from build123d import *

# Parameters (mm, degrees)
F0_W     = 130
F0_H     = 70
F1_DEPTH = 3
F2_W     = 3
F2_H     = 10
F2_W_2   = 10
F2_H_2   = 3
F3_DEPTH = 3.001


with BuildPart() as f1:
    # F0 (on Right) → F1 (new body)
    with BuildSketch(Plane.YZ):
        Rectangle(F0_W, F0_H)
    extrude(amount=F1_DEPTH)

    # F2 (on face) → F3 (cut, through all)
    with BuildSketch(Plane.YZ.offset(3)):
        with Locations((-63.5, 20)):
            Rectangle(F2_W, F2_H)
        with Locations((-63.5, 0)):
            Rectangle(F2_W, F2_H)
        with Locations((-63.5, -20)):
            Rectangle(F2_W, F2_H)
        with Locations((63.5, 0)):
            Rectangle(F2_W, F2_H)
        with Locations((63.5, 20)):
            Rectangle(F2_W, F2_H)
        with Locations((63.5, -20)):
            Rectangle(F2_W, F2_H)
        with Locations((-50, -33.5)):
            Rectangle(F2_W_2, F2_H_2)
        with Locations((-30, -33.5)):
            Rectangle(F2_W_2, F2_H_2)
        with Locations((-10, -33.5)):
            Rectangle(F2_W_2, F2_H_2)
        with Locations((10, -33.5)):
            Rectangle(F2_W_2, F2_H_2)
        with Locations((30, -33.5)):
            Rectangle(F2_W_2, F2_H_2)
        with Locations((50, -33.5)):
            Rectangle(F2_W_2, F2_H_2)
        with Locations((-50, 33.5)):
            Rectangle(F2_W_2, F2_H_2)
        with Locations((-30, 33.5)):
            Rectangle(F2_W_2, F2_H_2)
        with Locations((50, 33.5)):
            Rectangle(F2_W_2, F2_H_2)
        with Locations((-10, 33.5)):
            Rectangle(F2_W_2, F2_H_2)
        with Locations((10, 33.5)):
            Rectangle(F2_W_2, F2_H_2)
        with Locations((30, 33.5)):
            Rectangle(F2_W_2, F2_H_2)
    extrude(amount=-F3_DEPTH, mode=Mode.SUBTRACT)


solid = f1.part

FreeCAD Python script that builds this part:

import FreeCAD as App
import Part
import Sketcher
Q = App.Units.Quantity

doc = App.newDocument("Part")
body = doc.addObject("PartDesign::Body", "Body")

# Sketch on YZ plane
sketch1 = body.newObject("Sketcher::SketchObject", "Sketch")
sketch1.AttachmentSupport = (doc.getObject("YZ_Plane"), [""])
sketch1.MapMode = "FlatFace"
sketch1.addGeometry(Part.LineSegment(App.Vector(-65, 35, 0), App.Vector(-65, -35, 0)), False)
sketch1.addGeometry(Part.LineSegment(App.Vector(-65, -35, 0), App.Vector(65, -35, 0)), False)
sketch1.addGeometry(Part.LineSegment(App.Vector(65, -35, 0), App.Vector(65, 35, 0)), False)
sketch1.addGeometry(Part.LineSegment(App.Vector(65, 35, 0), App.Vector(-65, 35, 0)), False)
sketch1.addConstraint(Sketcher.Constraint("Coincident", 0, 2, 1, 1))
sketch1.addConstraint(Sketcher.Constraint("Coincident", 1, 2, 2, 1))
sketch1.addConstraint(Sketcher.Constraint("Coincident", 2, 2, 3, 1))
sketch1.addConstraint(Sketcher.Constraint("Coincident", 3, 2, 0, 1))
sketch1.addConstraint(Sketcher.Constraint("Vertical", 0))
sketch1.addConstraint(Sketcher.Constraint("Horizontal", 1))
sketch1.addConstraint(Sketcher.Constraint("Vertical", 2))
sketch1.addConstraint(Sketcher.Constraint("Horizontal", 3))
sketch1.addConstraint(Sketcher.Constraint("Symmetric", 0, 2, 2, 2, -1, 1))
sketch1.addConstraint(Sketcher.Constraint("DistanceX", 1, 1, 1, 2, Q("130 mm")))
sketch1.addConstraint(Sketcher.Constraint("DistanceY", 0, 2, 0, 1, Q("70 mm")))
pad1 = body.newObject("PartDesign::Pad", "Pad")
pad1.Profile = sketch1
pad1.Length = 3

# Sketch on YZ plane
sketch2 = body.newObject("Sketcher::SketchObject", "Sketch001")
sketch2.AttachmentSupport = (doc.getObject("YZ_Plane"), [""])
sketch2.MapMode = "FlatFace"
sketch2.AttachmentOffset = App.Placement(App.Vector(0, 0, 3), App.Rotation())
sketch2.addGeometry(Part.LineSegment(App.Vector(-65, 25, 0), App.Vector(-65, 15, 0)), False)
sketch2.addGeometry(Part.LineSegment(App.Vector(-65, 15, 0), App.Vector(-62, 15, 0)), False)
sketch2.addGeometry(Part.LineSegment(App.Vector(-62, 15, 0), App.Vector(-62, 25, 0)), False)
sketch2.addGeometry(Part.LineSegment(App.Vector(-62, 25, 0), App.Vector(-65, 25, 0)), False)
sketch2.addGeometry(Part.LineSegment(App.Vector(-65, 5, 0), App.Vector(-65, -5, 0)), False)
sketch2.addGeometry(Part.LineSegment(App.Vector(-65, -5, 0), App.Vector(-62, -5, 0)), False)
sketch2.addGeometry(Part.LineSegment(App.Vector(-62, -5, 0), App.Vector(-62, 5, 0)), False)
sketch2.addGeometry(Part.LineSegment(App.Vector(-62, 5, 0), App.Vector(-65, 5, 0)), False)
sketch2.addGeometry(Part.LineSegment(App.Vector(-65, -15, 0), App.Vector(-65, -25, 0)), False)
sketch2.addGeometry(Part.LineSegment(App.Vector(-65, -25, 0), App.Vector(-62, -25, 0)), False)
sketch2.addGeometry(Part.LineSegment(App.Vector(-62, -25, 0), App.Vector(-62, -15, 0)), False)
sketch2.addGeometry(Part.LineSegment(App.Vector(-62, -15, 0), App.Vector(-65, -15, 0)), False)
sketch2.addGeometry(Part.LineSegment(App.Vector(62, 5, 0), App.Vector(62, -5, 0)), False)
sketch2.addGeometry(Part.LineSegment(App.Vector(62, -5, 0), App.Vector(65, -5, 0)), False)
sketch2.addGeometry(Part.LineSegment(App.Vector(65, -5, 0), App.Vector(65, 5, 0)), False)
sketch2.addGeometry(Part.LineSegment(App.Vector(65, 5, 0), App.Vector(62, 5, 0)), False)
sketch2.addGeometry(Part.LineSegment(App.Vector(62, 25, 0), App.Vector(62, 15, 0)), False)
sketch2.addGeometry(Part.LineSegment(App.Vector(62, 15, 0), App.Vector(65, 15, 0)), False)
sketch2.addGeometry(Part.LineSegment(App.Vector(65, 15, 0), App.Vector(65, 25, 0)), False)
sketch2.addGeometry(Part.LineSegment(App.Vector(65, 25, 0), App.Vector(62, 25, 0)), False)
sketch2.addGeometry(Part.LineSegment(App.Vector(62, -15, 0), App.Vector(62, -25, 0)), False)
sketch2.addGeometry(Part.LineSegment(App.Vector(62, -25, 0), App.Vector(65, -25, 0)), False)
sketch2.addGeometry(Part.LineSegment(App.Vector(65, -25, 0), App.Vector(65, -15, 0)), False)
sketch2.addGeometry(Part.LineSegment(App.Vector(65, -15, 0), App.Vector(62, -15, 0)), False)
sketch2.addGeometry(Part.LineSegment(App.Vector(-55, -32, 0), App.Vector(-55, -35, 0)), False)
sketch2.addGeometry(Part.LineSegment(App.Vector(-55, -35, 0), App.Vector(-45, -35, 0)), False)
sketch2.addGeometry(Part.LineSegment(App.Vector(-45, -35, 0), App.Vector(-45, -32, 0)), False)
sketch2.addGeometry(Part.LineSegment(App.Vector(-45, -32, 0), App.Vector(-55, -32, 0)), False)
sketch2.addGeometry(Part.LineSegment(App.Vector(-35, -32, 0), App.Vector(-35, -35, 0)), False)
sketch2.addGeometry(Part.LineSegment(App.Vector(-35, -35, 0), App.Vector(-25, -35, 0)), False)
sketch2.addGeometry(Part.LineSegment(App.Vector(-25, -35, 0), App.Vector(-25, -32, 0)), False)
sketch2.addGeometry(Part.LineSegment(App.Vector(-25, -32, 0), App.Vector(-35, -32, 0)), False)
sketch2.addGeometry(Part.LineSegment(App.Vector(-15, -32, 0), App.Vector(-15, -35, 0)), False)
sketch2.addGeometry(Part.LineSegment(App.Vector(-15, -35, 0), App.Vector(-5, -35, 0)), False)
sketch2.addGeometry(Part.LineSegment(App.Vector(-5, -35, 0), App.Vector(-5, -32, 0)), False)
sketch2.addGeometry(Part.LineSegment(App.Vector(-5, -32, 0), App.Vector(-15, -32, 0)), False)
sketch2.addGeometry(Part.LineSegment(App.Vector(5, -32, 0), App.Vector(5, -35, 0)), False)
sketch2.addGeometry(Part.LineSegment(App.Vector(5, -35, 0), App.Vector(15, -35, 0)), False)
sketch2.addGeometry(Part.LineSegment(App.Vector(15, -35, 0), App.Vector(15, -32, 0)), False)
sketch2.addGeometry(Part.LineSegment(App.Vector(15, -32, 0), App.Vector(5, -32, 0)), False)
sketch2.addGeometry(Part.LineSegment(App.Vector(25, -32, 0), App.Vector(25, -35, 0)), False)
sketch2.addGeometry(Part.LineSegment(App.Vector(25, -35, 0), App.Vector(35, -35, 0)), False)
sketch2.addGeometry(Part.LineSegment(App.Vector(35, -35, 0), App.Vector(35, -32, 0)), False)
sketch2.addGeometry(Part.LineSegment(App.Vector(35, -32, 0), App.Vector(25, -32, 0)), False)
sketch2.addGeometry(Part.LineSegment(App.Vector(45, -32, 0), App.Vector(45, -35, 0)), False)
sketch2.addGeometry(Part.LineSegment(App.Vector(45, -35, 0), App.Vector(55, -35, 0)), False)
sketch2.addGeometry(Part.LineSegment(App.Vector(55, -35, 0), App.Vector(55, -32, 0)), False)
sketch2.addGeometry(Part.LineSegment(App.Vector(55, -32, 0), App.Vector(45, -32, 0)), False)
sketch2.addGeometry(Part.LineSegment(App.Vector(-55, 35, 0), App.Vector(-55, 32, 0)), False)
sketch2.addGeometry(Part.LineSegment(App.Vector(-55, 32, 0), App.Vector(-45, 32, 0)), False)
sketch2.addGeometry(Part.LineSegment(App.Vector(-45, 32, 0), App.Vector(-45, 35, 0)), False)
sketch2.addGeometry(Part.LineSegment(App.Vector(-45, 35, 0), App.Vector(-55, 35, 0)), False)
sketch2.addGeometry(Part.LineSegment(App.Vector(-35, 35, 0), App.Vector(-35, 32, 0)), False)
sketch2.addGeometry(Part.LineSegment(App.Vector(-35, 32, 0), App.Vector(-25, 32, 0)), False)
sketch2.addGeometry(Part.LineSegment(App.Vector(-25, 32, 0), App.Vector(-25, 35, 0)), False)
sketch2.addGeometry(Part.LineSegment(App.Vector(-25, 35, 0), App.Vector(-35, 35, 0)), False)
sketch2.addGeometry(Part.LineSegment(App.Vector(45, 35, 0), App.Vector(45, 32, 0)), False)
sketch2.addGeometry(Part.LineSegment(App.Vector(45, 32, 0), App.Vector(55, 32, 0)), False)
sketch2.addGeometry(Part.LineSegment(App.Vector(55, 32, 0), App.Vector(55, 35, 0)), False)
sketch2.addGeometry(Part.LineSegment(App.Vector(55, 35, 0), App.Vector(45, 35, 0)), False)
sketch2.addGeometry(Part.LineSegment(App.Vector(-15, 35, 0), App.Vector(-15, 32, 0)), False)
sketch2.addGeometry(Part.LineSegment(App.Vector(-15, 32, 0), App.Vector(-5, 32, 0)), False)
sketch2.addGeometry(Part.LineSegment(App.Vector(-5, 32, 0), App.Vector(-5, 35, 0)), False)
sketch2.addGeometry(Part.LineSegment(App.Vector(-5, 35, 0), App.Vector(-15, 35, 0)), False)
sketch2.addGeometry(Part.LineSegment(App.Vector(5, 35, 0), App.Vector(5, 32, 0)), False)
sketch2.addGeometry(Part.LineSegment(App.Vector(5, 32, 0), App.Vector(15, 32, 0)), False)
sketch2.addGeometry(Part.LineSegment(App.Vector(15, 32, 0), App.Vector(15, 35, 0)), False)
sketch2.addGeometry(Part.LineSegment(App.Vector(15, 35, 0), App.Vector(5, 35, 0)), False)
sketch2.addGeometry(Part.LineSegment(App.Vector(25, 35, 0), App.Vector(25, 32, 0)), False)
sketch2.addGeometry(Part.LineSegment(App.Vector(25, 32, 0), App.Vector(35, 32, 0)), False)
sketch2.addGeometry(Part.LineSegment(App.Vector(35, 32, 0), App.Vector(35, 35, 0)), False)
sketch2.addGeometry(Part.LineSegment(App.Vector(35, 35, 0), App.Vector(25, 35, 0)), False)
sketch2.addConstraint(Sketcher.Constraint("Coincident", 0, 2, 1, 1))
sketch2.addConstraint(Sketcher.Constraint("Coincident", 1, 2, 2, 1))
sketch2.addConstraint(Sketcher.Constraint("Coincident", 2, 2, 3, 1))
sketch2.addConstraint(Sketcher.Constraint("Coincident", 3, 2, 0, 1))
sketch2.addConstraint(Sketcher.Constraint("Coincident", 4, 2, 5, 1))
sketch2.addConstraint(Sketcher.Constraint("Coincident", 5, 2, 6, 1))
sketch2.addConstraint(Sketcher.Constraint("Coincident", 6, 2, 7, 1))
sketch2.addConstraint(Sketcher.Constraint("Coincident", 7, 2, 4, 1))
sketch2.addConstraint(Sketcher.Constraint("Coincident", 8, 2, 9, 1))
sketch2.addConstraint(Sketcher.Constraint("Coincident", 9, 2, 10, 1))
sketch2.addConstraint(Sketcher.Constraint("Coincident", 10, 2, 11, 1))
sketch2.addConstraint(Sketcher.Constraint("Coincident", 11, 2, 8, 1))
sketch2.addConstraint(Sketcher.Constraint("Coincident", 12, 2, 13, 1))
sketch2.addConstraint(Sketcher.Constraint("Coincident", 13, 2, 14, 1))
sketch2.addConstraint(Sketcher.Constraint("Coincident", 14, 2, 15, 1))
sketch2.addConstraint(Sketcher.Constraint("Coincident", 15, 2, 12, 1))
sketch2.addConstraint(Sketcher.Constraint("Coincident", 16, 2, 17, 1))
sketch2.addConstraint(Sketcher.Constraint("Coincident", 17, 2, 18, 1))
sketch2.addConstraint(Sketcher.Constraint("Coincident", 18, 2, 19, 1))
sketch2.addConstraint(Sketcher.Constraint("Coincident", 19, 2, 16, 1))
sketch2.addConstraint(Sketcher.Constraint("Coincident", 20, 2, 21, 1))
sketch2.addConstraint(Sketcher.Constraint("Coincident", 21, 2, 22, 1))
sketch2.addConstraint(Sketcher.Constraint("Coincident", 22, 2, 23, 1))
sketch2.addConstraint(Sketcher.Constraint("Coincident", 23, 2, 20, 1))
sketch2.addConstraint(Sketcher.Constraint("Coincident", 24, 2, 25, 1))
sketch2.addConstraint(Sketcher.Constraint("Coincident", 25, 2, 26, 1))
sketch2.addConstraint(Sketcher.Constraint("Coincident", 26, 2, 27, 1))
sketch2.addConstraint(Sketcher.Constraint("Coincident", 27, 2, 24, 1))
sketch2.addConstraint(Sketcher.Constraint("Coincident", 28, 2, 29, 1))
sketch2.addConstraint(Sketcher.Constraint("Coincident", 29, 2, 30, 1))
sketch2.addConstraint(Sketcher.Constraint("Coincident", 30, 2, 31, 1))
sketch2.addConstraint(Sketcher.Constraint("Coincident", 31, 2, 28, 1))
sketch2.addConstraint(Sketcher.Constraint("Coincident", 32, 2, 33, 1))
sketch2.addConstraint(Sketcher.Constraint("Coincident", 33, 2, 34, 1))
sketch2.addConstraint(Sketcher.Constraint("Coincident", 34, 2, 35, 1))
sketch2.addConstraint(Sketcher.Constraint("Coincident", 35, 2, 32, 1))
sketch2.addConstraint(Sketcher.Constraint("Coincident", 36, 2, 37, 1))
sketch2.addConstraint(Sketcher.Constraint("Coincident", 37, 2, 38, 1))
sketch2.addConstraint(Sketcher.Constraint("Coincident", 38, 2, 39, 1))
sketch2.addConstraint(Sketcher.Constraint("Coincident", 39, 2, 36, 1))
sketch2.addConstraint(Sketcher.Constraint("Coincident", 40, 2, 41, 1))
sketch2.addConstraint(Sketcher.Constraint("Coincident", 41, 2, 42, 1))
sketch2.addConstraint(Sketcher.Constraint("Coincident", 42, 2, 43, 1))
sketch2.addConstraint(Sketcher.Constraint("Coincident", 43, 2, 40, 1))
sketch2.addConstraint(Sketcher.Constraint("Coincident", 44, 2, 45, 1))
sketch2.addConstraint(Sketcher.Constraint("Coincident", 45, 2, 46, 1))
sketch2.addConstraint(Sketcher.Constraint("Coincident", 46, 2, 47, 1))
sketch2.addConstraint(Sketcher.Constraint("Coincident", 47, 2, 44, 1))
sketch2.addConstraint(Sketcher.Constraint("Coincident", 48, 2, 49, 1))
sketch2.addConstraint(Sketcher.Constraint("Coincident", 49, 2, 50, 1))
sketch2.addConstraint(Sketcher.Constraint("Coincident", 50, 2, 51, 1))
sketch2.addConstraint(Sketcher.Constraint("Coincident", 51, 2, 48, 1))
sketch2.addConstraint(Sketcher.Constraint("Coincident", 52, 2, 53, 1))
sketch2.addConstraint(Sketcher.Constraint("Coincident", 53, 2, 54, 1))
sketch2.addConstraint(Sketcher.Constraint("Coincident", 54, 2, 55, 1))
sketch2.addConstraint(Sketcher.Constraint("Coincident", 55, 2, 52, 1))
sketch2.addConstraint(Sketcher.Constraint("Coincident", 56, 2, 57, 1))
sketch2.addConstraint(Sketcher.Constraint("Coincident", 57, 2, 58, 1))
sketch2.addConstraint(Sketcher.Constraint("Coincident", 58, 2, 59, 1))
sketch2.addConstraint(Sketcher.Constraint("Coincident", 59, 2, 56, 1))
sketch2.addConstraint(Sketcher.Constraint("Coincident", 60, 2, 61, 1))
sketch2.addConstraint(Sketcher.Constraint("Coincident", 61, 2, 62, 1))
sketch2.addConstraint(Sketcher.Constraint("Coincident", 62, 2, 63, 1))
sketch2.addConstraint(Sketcher.Constraint("Coincident", 63, 2, 60, 1))
sketch2.addConstraint(Sketcher.Constraint("Coincident", 64, 2, 65, 1))
sketch2.addConstraint(Sketcher.Constraint("Coincident", 65, 2, 66, 1))
sketch2.addConstraint(Sketcher.Constraint("Coincident", 66, 2, 67, 1))
sketch2.addConstraint(Sketcher.Constraint("Coincident", 67, 2, 64, 1))
sketch2.addConstraint(Sketcher.Constraint("Coincident", 68, 2, 69, 1))
sketch2.addConstraint(Sketcher.Constraint("Coincident", 69, 2, 70, 1))
sketch2.addConstraint(Sketcher.Constraint("Coincident", 70, 2, 71, 1))
sketch2.addConstraint(Sketcher.Constraint("Coincident", 71, 2, 68, 1))
sketch2.addConstraint(Sketcher.Constraint("Vertical", 0))
sketch2.addConstraint(Sketcher.Constraint("Horizontal", 1))
sketch2.addConstraint(Sketcher.Constraint("Vertical", 2))
sketch2.addConstraint(Sketcher.Constraint("Horizontal", 3))
sketch2.addConstraint(Sketcher.Constraint("Vertical", 4))
sketch2.addConstraint(Sketcher.Constraint("Horizontal", 5))
sketch2.addConstraint(Sketcher.Constraint("Vertical", 6))
sketch2.addConstraint(Sketcher.Constraint("Horizontal", 7))
sketch2.addConstraint(Sketcher.Constraint("Vertical", 8))
sketch2.addConstraint(Sketcher.Constraint("Horizontal", 9))
sketch2.addConstraint(Sketcher.Constraint("Vertical", 10))
sketch2.addConstraint(Sketcher.Constraint("Horizontal", 11))
sketch2.addConstraint(Sketcher.Constraint("Vertical", 12))
sketch2.addConstraint(Sketcher.Constraint("Horizontal", 13))
sketch2.addConstraint(Sketcher.Constraint("Vertical", 14))
sketch2.addConstraint(Sketcher.Constraint("Horizontal", 15))
sketch2.addConstraint(Sketcher.Constraint("Vertical", 16))
sketch2.addConstraint(Sketcher.Constraint("Horizontal", 17))
sketch2.addConstraint(Sketcher.Constraint("Vertical", 18))
sketch2.addConstraint(Sketcher.Constraint("Horizontal", 19))
sketch2.addConstraint(Sketcher.Constraint("Vertical", 20))
sketch2.addConstraint(Sketcher.Constraint("Horizontal", 21))
sketch2.addConstraint(Sketcher.Constraint("Vertical", 22))
sketch2.addConstraint(Sketcher.Constraint("Horizontal", 23))
sketch2.addConstraint(Sketcher.Constraint("Vertical", 24))
sketch2.addConstraint(Sketcher.Constraint("Horizontal", 25))
sketch2.addConstraint(Sketcher.Constraint("Vertical", 26))
sketch2.addConstraint(Sketcher.Constraint("Horizontal", 27))
sketch2.addConstraint(Sketcher.Constraint("Vertical", 28))
sketch2.addConstraint(Sketcher.Constraint("Horizontal", 29))
sketch2.addConstraint(Sketcher.Constraint("Vertical", 30))
sketch2.addConstraint(Sketcher.Constraint("Horizontal", 31))
sketch2.addConstraint(Sketcher.Constraint("Vertical", 32))
sketch2.addConstraint(Sketcher.Constraint("Horizontal", 33))
sketch2.addConstraint(Sketcher.Constraint("Vertical", 34))
sketch2.addConstraint(Sketcher.Constraint("Horizontal", 35))
sketch2.addConstraint(Sketcher.Constraint("Vertical", 36))
sketch2.addConstraint(Sketcher.Constraint("Horizontal", 37))
sketch2.addConstraint(Sketcher.Constraint("Vertical", 38))
sketch2.addConstraint(Sketcher.Constraint("Horizontal", 39))
sketch2.addConstraint(Sketcher.Constraint("Vertical", 40))
sketch2.addConstraint(Sketcher.Constraint("Horizontal", 41))
sketch2.addConstraint(Sketcher.Constraint("Vertical", 42))
sketch2.addConstraint(Sketcher.Constraint("Horizontal", 43))
sketch2.addConstraint(Sketcher.Constraint("Vertical", 44))
sketch2.addConstraint(Sketcher.Constraint("Horizontal", 45))
sketch2.addConstraint(Sketcher.Constraint("Vertical", 46))
sketch2.addConstraint(Sketcher.Constraint("Horizontal", 47))
sketch2.addConstraint(Sketcher.Constraint("Vertical", 48))
sketch2.addConstraint(Sketcher.Constraint("Horizontal", 49))
sketch2.addConstraint(Sketcher.Constraint("Vertical", 50))
sketch2.addConstraint(Sketcher.Constraint("Horizontal", 51))
sketch2.addConstraint(Sketcher.Constraint("Vertical", 52))
sketch2.addConstraint(Sketcher.Constraint("Horizontal", 53))
sketch2.addConstraint(Sketcher.Constraint("Vertical", 54))
sketch2.addConstraint(Sketcher.Constraint("Horizontal", 55))
sketch2.addConstraint(Sketcher.Constraint("Vertical", 56))
sketch2.addConstraint(Sketcher.Constraint("Horizontal", 57))
sketch2.addConstraint(Sketcher.Constraint("Vertical", 58))
sketch2.addConstraint(Sketcher.Constraint("Horizontal", 59))
sketch2.addConstraint(Sketcher.Constraint("Vertical", 60))
sketch2.addConstraint(Sketcher.Constraint("Horizontal", 61))
sketch2.addConstraint(Sketcher.Constraint("Vertical", 62))
sketch2.addConstraint(Sketcher.Constraint("Horizontal", 63))
sketch2.addConstraint(Sketcher.Constraint("Vertical", 64))
sketch2.addConstraint(Sketcher.Constraint("Horizontal", 65))
sketch2.addConstraint(Sketcher.Constraint("Vertical", 66))
sketch2.addConstraint(Sketcher.Constraint("Horizontal", 67))
sketch2.addConstraint(Sketcher.Constraint("Vertical", 68))
sketch2.addConstraint(Sketcher.Constraint("Horizontal", 69))
sketch2.addConstraint(Sketcher.Constraint("Vertical", 70))
sketch2.addConstraint(Sketcher.Constraint("Horizontal", 71))
sketch2.addConstraint(Sketcher.Constraint("Symmetric", 6, 2, 12, 2, -1, 1))
sketch2.addConstraint(Sketcher.Constraint("Symmetric", 4, 2, 14, 2, -1, 1))
sketch2.addConstraint(Sketcher.Constraint("Symmetric", 10, 2, 16, 2, -1, 1))
sketch2.addConstraint(Sketcher.Constraint("Symmetric", 8, 2, 18, 2, -1, 1))
sketch2.addConstraint(Sketcher.Constraint("Symmetric", 2, 2, 20, 2, -1, 1))
sketch2.addConstraint(Sketcher.Constraint("Symmetric", 0, 2, 22, 2, -1, 1))
sketch2.addConstraint(Sketcher.Constraint("Symmetric", 46, 2, 48, 2, -1, 1))
sketch2.addConstraint(Sketcher.Constraint("Symmetric", 44, 2, 50, 2, -1, 1))
sketch2.addConstraint(Sketcher.Constraint("Symmetric", 42, 2, 52, 2, -1, 1))
sketch2.addConstraint(Sketcher.Constraint("Symmetric", 40, 2, 54, 2, -1, 1))
sketch2.addConstraint(Sketcher.Constraint("Symmetric", 26, 2, 56, 2, -1, 1))
sketch2.addConstraint(Sketcher.Constraint("Symmetric", 24, 2, 58, 2, -1, 1))
sketch2.addConstraint(Sketcher.Constraint("Symmetric", 38, 2, 60, 2, -1, 1))
sketch2.addConstraint(Sketcher.Constraint("Symmetric", 36, 2, 62, 2, -1, 1))
sketch2.addConstraint(Sketcher.Constraint("Symmetric", 34, 2, 64, 2, -1, 1))
sketch2.addConstraint(Sketcher.Constraint("Symmetric", 32, 2, 66, 2, -1, 1))
sketch2.addConstraint(Sketcher.Constraint("Symmetric", 30, 2, 68, 2, -1, 1))
sketch2.addConstraint(Sketcher.Constraint("Symmetric", 28, 2, 70, 2, -1, 1))
sketch2.addConstraint(Sketcher.Constraint("Symmetric", 1, 2, 16, 2, -2))
sketch2.addConstraint(Sketcher.Constraint("Symmetric", 3, 2, 18, 2, -2))
sketch2.addConstraint(Sketcher.Constraint("Symmetric", 33, 2, 36, 2, -2))
sketch2.addConstraint(Sketcher.Constraint("Symmetric", 35, 2, 38, 2, -2))
sketch2.addConstraint(Sketcher.Constraint("Symmetric", 29, 2, 40, 2, -2))
sketch2.addConstraint(Sketcher.Constraint("Symmetric", 31, 2, 42, 2, -2))
sketch2.addConstraint(Sketcher.Constraint("Symmetric", 25, 2, 44, 2, -2))
sketch2.addConstraint(Sketcher.Constraint("Symmetric", 27, 2, 46, 2, -2))
sketch2.addConstraint(Sketcher.Constraint("Horizontal", 5, 2, 12, 2))
sketch2.addConstraint(Sketcher.Constraint("Horizontal", 25, 2, 28, 2))
sketch2.addConstraint(Sketcher.Constraint("Horizontal", 27, 2, 30, 2))
sketch2.addConstraint(Sketcher.Constraint("Horizontal", 29, 2, 32, 2))
sketch2.addConstraint(Sketcher.Constraint("Horizontal", 31, 2, 34, 2))
sketch2.addConstraint(Sketcher.Constraint("Vertical", 3, 2, 4, 2))
sketch2.addConstraint(Sketcher.Constraint("Vertical", 2, 2, 5, 2))
sketch2.addConstraint(Sketcher.Constraint("Equal", 27, 29))
sketch2.addConstraint(Sketcher.Constraint("Equal", 31, 33))
sketch2.addConstraint(Sketcher.Constraint("Equal", 71, 0))
sketch2.addConstraint(Sketcher.Constraint("Equal", 2, 4))
sketch2.addConstraint(Sketcher.Constraint("Equal", 23, 24))
sketch2.addConstraint(Sketcher.Constraint("DistanceX", 1, 1, 1, 2, Q("3 mm")))
sketch2.addConstraint(Sketcher.Constraint("DistanceX", 25, 1, 25, 2, Q("10 mm")))
sketch2.addConstraint(Sketcher.Constraint("DistanceX", 0, 2, -1, 1, Q("65 mm")))
sketch2.addConstraint(Sketcher.Constraint("DistanceY", -1, 1, 0, 2, Q("15 mm")))
sketch2.addConstraint(Sketcher.Constraint("DistanceX", 24, 2, -1, 1, Q("55 mm")))
sketch2.addConstraint(Sketcher.Constraint("DistanceY", 24, 2, -1, 1, Q("35 mm")))
sketch2.addConstraint(Sketcher.Constraint("DistanceX", 28, 2, -1, 1, Q("35 mm")))
sketch2.addConstraint(Sketcher.Constraint("DistanceX", 32, 2, -1, 1, Q("15 mm")))
pocket1 = body.newObject("PartDesign::Pocket", "Pocket")
pocket1.Profile = sketch2
pocket1.Type = "ThroughAll"

doc.recompute()
